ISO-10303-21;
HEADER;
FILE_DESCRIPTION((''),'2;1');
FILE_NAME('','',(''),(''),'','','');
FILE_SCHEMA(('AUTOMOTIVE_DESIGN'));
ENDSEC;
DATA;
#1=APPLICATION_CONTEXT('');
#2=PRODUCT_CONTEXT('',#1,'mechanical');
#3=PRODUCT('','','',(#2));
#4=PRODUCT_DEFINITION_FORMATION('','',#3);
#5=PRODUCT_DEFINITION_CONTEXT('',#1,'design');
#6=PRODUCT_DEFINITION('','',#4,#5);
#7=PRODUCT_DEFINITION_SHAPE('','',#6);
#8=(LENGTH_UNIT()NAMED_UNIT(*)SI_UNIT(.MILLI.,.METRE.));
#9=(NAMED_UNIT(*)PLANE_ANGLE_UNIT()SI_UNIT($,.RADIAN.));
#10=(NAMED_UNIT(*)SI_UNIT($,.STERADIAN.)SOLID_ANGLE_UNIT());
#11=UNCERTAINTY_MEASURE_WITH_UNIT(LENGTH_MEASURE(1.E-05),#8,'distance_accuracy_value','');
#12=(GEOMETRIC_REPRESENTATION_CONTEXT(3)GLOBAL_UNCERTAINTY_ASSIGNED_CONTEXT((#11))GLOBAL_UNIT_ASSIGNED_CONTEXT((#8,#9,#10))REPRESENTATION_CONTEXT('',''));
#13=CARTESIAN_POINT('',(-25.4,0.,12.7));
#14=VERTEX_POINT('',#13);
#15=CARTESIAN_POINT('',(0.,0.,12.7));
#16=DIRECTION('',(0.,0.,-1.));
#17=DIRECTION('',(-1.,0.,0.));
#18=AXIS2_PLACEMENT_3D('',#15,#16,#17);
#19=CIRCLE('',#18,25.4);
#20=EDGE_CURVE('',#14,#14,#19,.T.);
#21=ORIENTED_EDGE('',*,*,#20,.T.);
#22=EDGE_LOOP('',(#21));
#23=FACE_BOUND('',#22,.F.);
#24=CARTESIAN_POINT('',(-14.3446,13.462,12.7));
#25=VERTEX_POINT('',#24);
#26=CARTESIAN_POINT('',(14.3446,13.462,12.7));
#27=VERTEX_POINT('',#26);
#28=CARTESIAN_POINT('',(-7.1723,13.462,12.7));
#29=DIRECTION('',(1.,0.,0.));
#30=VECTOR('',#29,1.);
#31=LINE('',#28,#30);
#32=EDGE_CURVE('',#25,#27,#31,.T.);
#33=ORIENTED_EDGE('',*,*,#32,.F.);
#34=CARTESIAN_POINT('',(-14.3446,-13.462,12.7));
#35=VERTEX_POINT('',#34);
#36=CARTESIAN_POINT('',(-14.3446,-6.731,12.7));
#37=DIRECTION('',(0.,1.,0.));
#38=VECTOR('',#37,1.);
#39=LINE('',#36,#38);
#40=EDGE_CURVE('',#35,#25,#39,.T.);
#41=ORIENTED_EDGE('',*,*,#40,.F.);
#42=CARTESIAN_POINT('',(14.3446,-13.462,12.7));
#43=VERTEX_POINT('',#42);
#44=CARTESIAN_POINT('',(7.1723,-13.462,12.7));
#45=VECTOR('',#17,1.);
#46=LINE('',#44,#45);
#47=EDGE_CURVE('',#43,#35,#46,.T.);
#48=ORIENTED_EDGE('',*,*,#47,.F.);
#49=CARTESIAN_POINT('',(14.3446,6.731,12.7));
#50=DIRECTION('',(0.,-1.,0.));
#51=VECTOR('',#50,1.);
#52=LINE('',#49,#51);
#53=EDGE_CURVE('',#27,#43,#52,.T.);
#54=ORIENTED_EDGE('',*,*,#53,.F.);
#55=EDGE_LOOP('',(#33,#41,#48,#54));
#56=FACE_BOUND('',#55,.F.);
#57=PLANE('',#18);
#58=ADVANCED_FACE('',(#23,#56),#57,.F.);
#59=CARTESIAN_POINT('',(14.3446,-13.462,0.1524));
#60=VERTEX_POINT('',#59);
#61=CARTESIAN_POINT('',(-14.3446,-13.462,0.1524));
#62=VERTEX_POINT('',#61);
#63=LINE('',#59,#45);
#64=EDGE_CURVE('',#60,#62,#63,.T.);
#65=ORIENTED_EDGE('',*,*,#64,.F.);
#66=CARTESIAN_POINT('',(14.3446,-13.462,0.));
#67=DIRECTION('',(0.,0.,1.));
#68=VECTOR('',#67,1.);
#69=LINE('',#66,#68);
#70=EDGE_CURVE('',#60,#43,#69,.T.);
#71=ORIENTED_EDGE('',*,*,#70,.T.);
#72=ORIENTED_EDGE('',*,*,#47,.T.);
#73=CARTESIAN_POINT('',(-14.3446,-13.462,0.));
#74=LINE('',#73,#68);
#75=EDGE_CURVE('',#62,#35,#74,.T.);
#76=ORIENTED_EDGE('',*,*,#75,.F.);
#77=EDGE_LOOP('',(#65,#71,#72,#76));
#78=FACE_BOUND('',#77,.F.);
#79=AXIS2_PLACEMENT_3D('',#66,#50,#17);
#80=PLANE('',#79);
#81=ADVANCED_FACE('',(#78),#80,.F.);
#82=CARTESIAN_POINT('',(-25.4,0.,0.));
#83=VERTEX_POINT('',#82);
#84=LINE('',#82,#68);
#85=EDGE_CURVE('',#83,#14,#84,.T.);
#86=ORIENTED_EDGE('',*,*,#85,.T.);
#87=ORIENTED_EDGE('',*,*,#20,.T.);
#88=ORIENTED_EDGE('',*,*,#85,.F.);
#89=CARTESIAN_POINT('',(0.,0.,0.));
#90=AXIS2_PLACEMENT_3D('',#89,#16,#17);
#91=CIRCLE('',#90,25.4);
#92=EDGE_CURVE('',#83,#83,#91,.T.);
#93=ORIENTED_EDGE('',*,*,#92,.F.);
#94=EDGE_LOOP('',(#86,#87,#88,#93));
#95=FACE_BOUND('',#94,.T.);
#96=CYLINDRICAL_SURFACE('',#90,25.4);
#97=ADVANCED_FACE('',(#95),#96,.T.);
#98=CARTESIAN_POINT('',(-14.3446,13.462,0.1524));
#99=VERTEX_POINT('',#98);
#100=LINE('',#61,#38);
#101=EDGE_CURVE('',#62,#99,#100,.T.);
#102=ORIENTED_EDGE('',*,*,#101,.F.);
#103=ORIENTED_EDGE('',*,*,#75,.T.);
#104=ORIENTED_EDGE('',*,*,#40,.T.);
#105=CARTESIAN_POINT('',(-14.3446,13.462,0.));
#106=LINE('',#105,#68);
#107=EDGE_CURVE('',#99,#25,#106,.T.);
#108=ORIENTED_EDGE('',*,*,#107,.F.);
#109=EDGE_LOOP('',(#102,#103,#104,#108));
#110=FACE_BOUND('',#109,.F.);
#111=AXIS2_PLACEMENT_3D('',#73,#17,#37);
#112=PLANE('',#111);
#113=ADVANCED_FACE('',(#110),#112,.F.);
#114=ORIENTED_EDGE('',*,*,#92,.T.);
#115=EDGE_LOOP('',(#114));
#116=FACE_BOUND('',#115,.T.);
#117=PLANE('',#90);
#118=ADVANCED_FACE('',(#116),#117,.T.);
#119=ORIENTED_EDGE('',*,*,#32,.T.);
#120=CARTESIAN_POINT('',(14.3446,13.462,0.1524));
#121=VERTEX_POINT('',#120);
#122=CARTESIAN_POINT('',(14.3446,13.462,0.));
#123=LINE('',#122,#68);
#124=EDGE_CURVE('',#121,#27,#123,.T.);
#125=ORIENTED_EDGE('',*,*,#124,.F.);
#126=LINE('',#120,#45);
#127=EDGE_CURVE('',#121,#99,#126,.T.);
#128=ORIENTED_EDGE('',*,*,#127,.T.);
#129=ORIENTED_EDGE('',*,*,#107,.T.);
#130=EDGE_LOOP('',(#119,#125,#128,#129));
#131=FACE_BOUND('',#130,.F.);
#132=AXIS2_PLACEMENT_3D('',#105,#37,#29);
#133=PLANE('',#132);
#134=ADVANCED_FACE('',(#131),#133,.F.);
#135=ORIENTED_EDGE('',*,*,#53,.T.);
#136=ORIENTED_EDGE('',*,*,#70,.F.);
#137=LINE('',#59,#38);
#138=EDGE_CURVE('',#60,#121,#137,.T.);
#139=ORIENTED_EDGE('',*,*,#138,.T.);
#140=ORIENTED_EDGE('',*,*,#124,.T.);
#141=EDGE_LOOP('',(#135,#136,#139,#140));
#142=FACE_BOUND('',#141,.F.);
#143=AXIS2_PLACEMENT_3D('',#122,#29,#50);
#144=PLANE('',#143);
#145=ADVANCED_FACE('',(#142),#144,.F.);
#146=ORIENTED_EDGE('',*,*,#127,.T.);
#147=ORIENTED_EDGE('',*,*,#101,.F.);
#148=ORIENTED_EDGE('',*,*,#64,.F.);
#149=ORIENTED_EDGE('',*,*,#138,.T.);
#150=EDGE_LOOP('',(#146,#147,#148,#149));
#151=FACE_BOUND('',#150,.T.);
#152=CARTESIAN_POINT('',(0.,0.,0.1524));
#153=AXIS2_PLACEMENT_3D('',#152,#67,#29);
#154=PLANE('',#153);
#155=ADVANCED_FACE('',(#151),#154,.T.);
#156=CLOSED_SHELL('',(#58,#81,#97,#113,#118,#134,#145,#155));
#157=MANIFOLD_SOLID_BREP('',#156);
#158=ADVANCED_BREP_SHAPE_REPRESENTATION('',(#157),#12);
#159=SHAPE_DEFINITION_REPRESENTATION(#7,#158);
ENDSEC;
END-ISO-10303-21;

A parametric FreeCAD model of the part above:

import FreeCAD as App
import Part
import Sketcher
from FreeCAD import Vector
Q = App.Units.Quantity


def add_polygon(sketch, points):
    """Adds a closed chain of lines whose ends are joined by coincident constraints."""
    first, n = sketch.GeometryCount, len(points)
    for a, b in zip(points, points[1:] + points[:1]):
        sketch.addGeometry(Part.LineSegment(App.Vector(*a, 0), App.Vector(*b, 0)), False)
    for i in range(n):
        sketch.addConstraint(Sketcher.Constraint("Coincident", first + i, 2, first + (i + 1) % n, 1))

doc = App.newDocument("Part")
params = doc.addObject("Spreadsheet::Sheet", "Params")
for row, (alias, value) in enumerate([
    ("sketch1_diameter", "2 in"),
    ("pad1_length", "0.5 in"),
    ("sketch2_height", "1.06 in"),
    ("sketch3_height", "1.06 in"),
    ("pad2_length", "0.006 in"),
], start=1):
    params.set(f"A{row}", alias)
    params.set(f"B{row}", "=" + value)
    params.setAlias(f"B{row}", alias)

body = doc.addObject("PartDesign::Body", "Body")

sketch1 = body.newObject("Sketcher::SketchObject", "Sketch")
sketch1.AttachmentSupport = (doc.getObject("XY_Plane"), [""])
sketch1.MapMode = "FlatFace"
sketch1.addGeometry(Part.Circle(Vector(0, 0, 0), Vector(0, 0, 1), 25), False)
sketch1.addConstraint(Sketcher.Constraint("Coincident", 0, 3, -1, 1))
sketch1.addConstraint(Sketcher.Constraint("Diameter", 0, Q("2 in")))
sketch1.setExpression("Constraints[1]", "Params.sketch1_diameter")
pad1 = body.newObject("PartDesign::Pad", "Pad")
pad1.Profile = sketch1
pad1.setExpression("Length", "Params.pad1_length")

sketch2 = body.newObject("Sketcher::SketchObject", "Sketch001")
sketch2.AttachmentSupport = (doc.getObject("XY_Plane"), [""])
sketch2.MapMode = "FlatFace"
add_polygon(sketch2, [(14, 13), (-14, 13), (-14, -13), (14, -13)])
sketch2.addConstraint(Sketcher.Constraint("Horizontal", 0))
sketch2.addConstraint(Sketcher.Constraint("Vertical", 1))
sketch2.addConstraint(Sketcher.Constraint("Horizontal", 2))
sketch2.addConstraint(Sketcher.Constraint("Vertical", 3))
sketch2.addConstraint(Sketcher.Constraint("Symmetric", 0, 2, 2, 2, -1, 1))
sketch2.addConstraint(Sketcher.Constraint("DistanceY", 1, 2, 1, 1, Q("1.06 in")))
sketch2.addConstraint(Sketcher.Constraint("DistanceX", 0, 2, 0, 1, Q("1.1295 in")))
sketch2.setExpression("Constraints[9]", "Params.sketch2_height")
pocket1 = body.newObject("PartDesign::Pocket", "Pocket")
pocket1.Profile = sketch2
pocket1.Type = "ThroughAll"
pocket1.Reversed = True

sketch3 = body.newObject("Sketcher::SketchObject", "Sketch002")
sketch3.AttachmentSupport = (doc.getObject("XY_Plane"), [""])
sketch3.MapMode = "FlatFace"
add_polygon(sketch3, [(-14, -13), (14, -13), (14, 13), (-14, 13)])
sketch3.addConstraint(Sketcher.Constraint("Horizontal", 0))
sketch3.addConstraint(Sketcher.Constraint("Vertical", 1))
sketch3.addConstraint(Sketcher.Constraint("Horizontal", 2))
sketch3.addConstraint(Sketcher.Constraint("Vertical", 3))
sketch3.addConstraint(Sketcher.Constraint("Symmetric", 0, 2, 2, 2, -1, 1))
sketch3.addConstraint(Sketcher.Constraint("DistanceY", 1, 1, 1, 2, Q("1.06 in")))
sketch3.addConstraint(Sketcher.Constraint("DistanceX", 0, 1, 0, 2, Q("1.1295 in")))
sketch3.setExpression("Constraints[9]", "Params.sketch3_height")
pad2 = body.newObject("PartDesign::Pad", "Pad001")
pad2.Profile = sketch3
pad2.setExpression("Length", "Params.pad2_length")

doc.recompute()
